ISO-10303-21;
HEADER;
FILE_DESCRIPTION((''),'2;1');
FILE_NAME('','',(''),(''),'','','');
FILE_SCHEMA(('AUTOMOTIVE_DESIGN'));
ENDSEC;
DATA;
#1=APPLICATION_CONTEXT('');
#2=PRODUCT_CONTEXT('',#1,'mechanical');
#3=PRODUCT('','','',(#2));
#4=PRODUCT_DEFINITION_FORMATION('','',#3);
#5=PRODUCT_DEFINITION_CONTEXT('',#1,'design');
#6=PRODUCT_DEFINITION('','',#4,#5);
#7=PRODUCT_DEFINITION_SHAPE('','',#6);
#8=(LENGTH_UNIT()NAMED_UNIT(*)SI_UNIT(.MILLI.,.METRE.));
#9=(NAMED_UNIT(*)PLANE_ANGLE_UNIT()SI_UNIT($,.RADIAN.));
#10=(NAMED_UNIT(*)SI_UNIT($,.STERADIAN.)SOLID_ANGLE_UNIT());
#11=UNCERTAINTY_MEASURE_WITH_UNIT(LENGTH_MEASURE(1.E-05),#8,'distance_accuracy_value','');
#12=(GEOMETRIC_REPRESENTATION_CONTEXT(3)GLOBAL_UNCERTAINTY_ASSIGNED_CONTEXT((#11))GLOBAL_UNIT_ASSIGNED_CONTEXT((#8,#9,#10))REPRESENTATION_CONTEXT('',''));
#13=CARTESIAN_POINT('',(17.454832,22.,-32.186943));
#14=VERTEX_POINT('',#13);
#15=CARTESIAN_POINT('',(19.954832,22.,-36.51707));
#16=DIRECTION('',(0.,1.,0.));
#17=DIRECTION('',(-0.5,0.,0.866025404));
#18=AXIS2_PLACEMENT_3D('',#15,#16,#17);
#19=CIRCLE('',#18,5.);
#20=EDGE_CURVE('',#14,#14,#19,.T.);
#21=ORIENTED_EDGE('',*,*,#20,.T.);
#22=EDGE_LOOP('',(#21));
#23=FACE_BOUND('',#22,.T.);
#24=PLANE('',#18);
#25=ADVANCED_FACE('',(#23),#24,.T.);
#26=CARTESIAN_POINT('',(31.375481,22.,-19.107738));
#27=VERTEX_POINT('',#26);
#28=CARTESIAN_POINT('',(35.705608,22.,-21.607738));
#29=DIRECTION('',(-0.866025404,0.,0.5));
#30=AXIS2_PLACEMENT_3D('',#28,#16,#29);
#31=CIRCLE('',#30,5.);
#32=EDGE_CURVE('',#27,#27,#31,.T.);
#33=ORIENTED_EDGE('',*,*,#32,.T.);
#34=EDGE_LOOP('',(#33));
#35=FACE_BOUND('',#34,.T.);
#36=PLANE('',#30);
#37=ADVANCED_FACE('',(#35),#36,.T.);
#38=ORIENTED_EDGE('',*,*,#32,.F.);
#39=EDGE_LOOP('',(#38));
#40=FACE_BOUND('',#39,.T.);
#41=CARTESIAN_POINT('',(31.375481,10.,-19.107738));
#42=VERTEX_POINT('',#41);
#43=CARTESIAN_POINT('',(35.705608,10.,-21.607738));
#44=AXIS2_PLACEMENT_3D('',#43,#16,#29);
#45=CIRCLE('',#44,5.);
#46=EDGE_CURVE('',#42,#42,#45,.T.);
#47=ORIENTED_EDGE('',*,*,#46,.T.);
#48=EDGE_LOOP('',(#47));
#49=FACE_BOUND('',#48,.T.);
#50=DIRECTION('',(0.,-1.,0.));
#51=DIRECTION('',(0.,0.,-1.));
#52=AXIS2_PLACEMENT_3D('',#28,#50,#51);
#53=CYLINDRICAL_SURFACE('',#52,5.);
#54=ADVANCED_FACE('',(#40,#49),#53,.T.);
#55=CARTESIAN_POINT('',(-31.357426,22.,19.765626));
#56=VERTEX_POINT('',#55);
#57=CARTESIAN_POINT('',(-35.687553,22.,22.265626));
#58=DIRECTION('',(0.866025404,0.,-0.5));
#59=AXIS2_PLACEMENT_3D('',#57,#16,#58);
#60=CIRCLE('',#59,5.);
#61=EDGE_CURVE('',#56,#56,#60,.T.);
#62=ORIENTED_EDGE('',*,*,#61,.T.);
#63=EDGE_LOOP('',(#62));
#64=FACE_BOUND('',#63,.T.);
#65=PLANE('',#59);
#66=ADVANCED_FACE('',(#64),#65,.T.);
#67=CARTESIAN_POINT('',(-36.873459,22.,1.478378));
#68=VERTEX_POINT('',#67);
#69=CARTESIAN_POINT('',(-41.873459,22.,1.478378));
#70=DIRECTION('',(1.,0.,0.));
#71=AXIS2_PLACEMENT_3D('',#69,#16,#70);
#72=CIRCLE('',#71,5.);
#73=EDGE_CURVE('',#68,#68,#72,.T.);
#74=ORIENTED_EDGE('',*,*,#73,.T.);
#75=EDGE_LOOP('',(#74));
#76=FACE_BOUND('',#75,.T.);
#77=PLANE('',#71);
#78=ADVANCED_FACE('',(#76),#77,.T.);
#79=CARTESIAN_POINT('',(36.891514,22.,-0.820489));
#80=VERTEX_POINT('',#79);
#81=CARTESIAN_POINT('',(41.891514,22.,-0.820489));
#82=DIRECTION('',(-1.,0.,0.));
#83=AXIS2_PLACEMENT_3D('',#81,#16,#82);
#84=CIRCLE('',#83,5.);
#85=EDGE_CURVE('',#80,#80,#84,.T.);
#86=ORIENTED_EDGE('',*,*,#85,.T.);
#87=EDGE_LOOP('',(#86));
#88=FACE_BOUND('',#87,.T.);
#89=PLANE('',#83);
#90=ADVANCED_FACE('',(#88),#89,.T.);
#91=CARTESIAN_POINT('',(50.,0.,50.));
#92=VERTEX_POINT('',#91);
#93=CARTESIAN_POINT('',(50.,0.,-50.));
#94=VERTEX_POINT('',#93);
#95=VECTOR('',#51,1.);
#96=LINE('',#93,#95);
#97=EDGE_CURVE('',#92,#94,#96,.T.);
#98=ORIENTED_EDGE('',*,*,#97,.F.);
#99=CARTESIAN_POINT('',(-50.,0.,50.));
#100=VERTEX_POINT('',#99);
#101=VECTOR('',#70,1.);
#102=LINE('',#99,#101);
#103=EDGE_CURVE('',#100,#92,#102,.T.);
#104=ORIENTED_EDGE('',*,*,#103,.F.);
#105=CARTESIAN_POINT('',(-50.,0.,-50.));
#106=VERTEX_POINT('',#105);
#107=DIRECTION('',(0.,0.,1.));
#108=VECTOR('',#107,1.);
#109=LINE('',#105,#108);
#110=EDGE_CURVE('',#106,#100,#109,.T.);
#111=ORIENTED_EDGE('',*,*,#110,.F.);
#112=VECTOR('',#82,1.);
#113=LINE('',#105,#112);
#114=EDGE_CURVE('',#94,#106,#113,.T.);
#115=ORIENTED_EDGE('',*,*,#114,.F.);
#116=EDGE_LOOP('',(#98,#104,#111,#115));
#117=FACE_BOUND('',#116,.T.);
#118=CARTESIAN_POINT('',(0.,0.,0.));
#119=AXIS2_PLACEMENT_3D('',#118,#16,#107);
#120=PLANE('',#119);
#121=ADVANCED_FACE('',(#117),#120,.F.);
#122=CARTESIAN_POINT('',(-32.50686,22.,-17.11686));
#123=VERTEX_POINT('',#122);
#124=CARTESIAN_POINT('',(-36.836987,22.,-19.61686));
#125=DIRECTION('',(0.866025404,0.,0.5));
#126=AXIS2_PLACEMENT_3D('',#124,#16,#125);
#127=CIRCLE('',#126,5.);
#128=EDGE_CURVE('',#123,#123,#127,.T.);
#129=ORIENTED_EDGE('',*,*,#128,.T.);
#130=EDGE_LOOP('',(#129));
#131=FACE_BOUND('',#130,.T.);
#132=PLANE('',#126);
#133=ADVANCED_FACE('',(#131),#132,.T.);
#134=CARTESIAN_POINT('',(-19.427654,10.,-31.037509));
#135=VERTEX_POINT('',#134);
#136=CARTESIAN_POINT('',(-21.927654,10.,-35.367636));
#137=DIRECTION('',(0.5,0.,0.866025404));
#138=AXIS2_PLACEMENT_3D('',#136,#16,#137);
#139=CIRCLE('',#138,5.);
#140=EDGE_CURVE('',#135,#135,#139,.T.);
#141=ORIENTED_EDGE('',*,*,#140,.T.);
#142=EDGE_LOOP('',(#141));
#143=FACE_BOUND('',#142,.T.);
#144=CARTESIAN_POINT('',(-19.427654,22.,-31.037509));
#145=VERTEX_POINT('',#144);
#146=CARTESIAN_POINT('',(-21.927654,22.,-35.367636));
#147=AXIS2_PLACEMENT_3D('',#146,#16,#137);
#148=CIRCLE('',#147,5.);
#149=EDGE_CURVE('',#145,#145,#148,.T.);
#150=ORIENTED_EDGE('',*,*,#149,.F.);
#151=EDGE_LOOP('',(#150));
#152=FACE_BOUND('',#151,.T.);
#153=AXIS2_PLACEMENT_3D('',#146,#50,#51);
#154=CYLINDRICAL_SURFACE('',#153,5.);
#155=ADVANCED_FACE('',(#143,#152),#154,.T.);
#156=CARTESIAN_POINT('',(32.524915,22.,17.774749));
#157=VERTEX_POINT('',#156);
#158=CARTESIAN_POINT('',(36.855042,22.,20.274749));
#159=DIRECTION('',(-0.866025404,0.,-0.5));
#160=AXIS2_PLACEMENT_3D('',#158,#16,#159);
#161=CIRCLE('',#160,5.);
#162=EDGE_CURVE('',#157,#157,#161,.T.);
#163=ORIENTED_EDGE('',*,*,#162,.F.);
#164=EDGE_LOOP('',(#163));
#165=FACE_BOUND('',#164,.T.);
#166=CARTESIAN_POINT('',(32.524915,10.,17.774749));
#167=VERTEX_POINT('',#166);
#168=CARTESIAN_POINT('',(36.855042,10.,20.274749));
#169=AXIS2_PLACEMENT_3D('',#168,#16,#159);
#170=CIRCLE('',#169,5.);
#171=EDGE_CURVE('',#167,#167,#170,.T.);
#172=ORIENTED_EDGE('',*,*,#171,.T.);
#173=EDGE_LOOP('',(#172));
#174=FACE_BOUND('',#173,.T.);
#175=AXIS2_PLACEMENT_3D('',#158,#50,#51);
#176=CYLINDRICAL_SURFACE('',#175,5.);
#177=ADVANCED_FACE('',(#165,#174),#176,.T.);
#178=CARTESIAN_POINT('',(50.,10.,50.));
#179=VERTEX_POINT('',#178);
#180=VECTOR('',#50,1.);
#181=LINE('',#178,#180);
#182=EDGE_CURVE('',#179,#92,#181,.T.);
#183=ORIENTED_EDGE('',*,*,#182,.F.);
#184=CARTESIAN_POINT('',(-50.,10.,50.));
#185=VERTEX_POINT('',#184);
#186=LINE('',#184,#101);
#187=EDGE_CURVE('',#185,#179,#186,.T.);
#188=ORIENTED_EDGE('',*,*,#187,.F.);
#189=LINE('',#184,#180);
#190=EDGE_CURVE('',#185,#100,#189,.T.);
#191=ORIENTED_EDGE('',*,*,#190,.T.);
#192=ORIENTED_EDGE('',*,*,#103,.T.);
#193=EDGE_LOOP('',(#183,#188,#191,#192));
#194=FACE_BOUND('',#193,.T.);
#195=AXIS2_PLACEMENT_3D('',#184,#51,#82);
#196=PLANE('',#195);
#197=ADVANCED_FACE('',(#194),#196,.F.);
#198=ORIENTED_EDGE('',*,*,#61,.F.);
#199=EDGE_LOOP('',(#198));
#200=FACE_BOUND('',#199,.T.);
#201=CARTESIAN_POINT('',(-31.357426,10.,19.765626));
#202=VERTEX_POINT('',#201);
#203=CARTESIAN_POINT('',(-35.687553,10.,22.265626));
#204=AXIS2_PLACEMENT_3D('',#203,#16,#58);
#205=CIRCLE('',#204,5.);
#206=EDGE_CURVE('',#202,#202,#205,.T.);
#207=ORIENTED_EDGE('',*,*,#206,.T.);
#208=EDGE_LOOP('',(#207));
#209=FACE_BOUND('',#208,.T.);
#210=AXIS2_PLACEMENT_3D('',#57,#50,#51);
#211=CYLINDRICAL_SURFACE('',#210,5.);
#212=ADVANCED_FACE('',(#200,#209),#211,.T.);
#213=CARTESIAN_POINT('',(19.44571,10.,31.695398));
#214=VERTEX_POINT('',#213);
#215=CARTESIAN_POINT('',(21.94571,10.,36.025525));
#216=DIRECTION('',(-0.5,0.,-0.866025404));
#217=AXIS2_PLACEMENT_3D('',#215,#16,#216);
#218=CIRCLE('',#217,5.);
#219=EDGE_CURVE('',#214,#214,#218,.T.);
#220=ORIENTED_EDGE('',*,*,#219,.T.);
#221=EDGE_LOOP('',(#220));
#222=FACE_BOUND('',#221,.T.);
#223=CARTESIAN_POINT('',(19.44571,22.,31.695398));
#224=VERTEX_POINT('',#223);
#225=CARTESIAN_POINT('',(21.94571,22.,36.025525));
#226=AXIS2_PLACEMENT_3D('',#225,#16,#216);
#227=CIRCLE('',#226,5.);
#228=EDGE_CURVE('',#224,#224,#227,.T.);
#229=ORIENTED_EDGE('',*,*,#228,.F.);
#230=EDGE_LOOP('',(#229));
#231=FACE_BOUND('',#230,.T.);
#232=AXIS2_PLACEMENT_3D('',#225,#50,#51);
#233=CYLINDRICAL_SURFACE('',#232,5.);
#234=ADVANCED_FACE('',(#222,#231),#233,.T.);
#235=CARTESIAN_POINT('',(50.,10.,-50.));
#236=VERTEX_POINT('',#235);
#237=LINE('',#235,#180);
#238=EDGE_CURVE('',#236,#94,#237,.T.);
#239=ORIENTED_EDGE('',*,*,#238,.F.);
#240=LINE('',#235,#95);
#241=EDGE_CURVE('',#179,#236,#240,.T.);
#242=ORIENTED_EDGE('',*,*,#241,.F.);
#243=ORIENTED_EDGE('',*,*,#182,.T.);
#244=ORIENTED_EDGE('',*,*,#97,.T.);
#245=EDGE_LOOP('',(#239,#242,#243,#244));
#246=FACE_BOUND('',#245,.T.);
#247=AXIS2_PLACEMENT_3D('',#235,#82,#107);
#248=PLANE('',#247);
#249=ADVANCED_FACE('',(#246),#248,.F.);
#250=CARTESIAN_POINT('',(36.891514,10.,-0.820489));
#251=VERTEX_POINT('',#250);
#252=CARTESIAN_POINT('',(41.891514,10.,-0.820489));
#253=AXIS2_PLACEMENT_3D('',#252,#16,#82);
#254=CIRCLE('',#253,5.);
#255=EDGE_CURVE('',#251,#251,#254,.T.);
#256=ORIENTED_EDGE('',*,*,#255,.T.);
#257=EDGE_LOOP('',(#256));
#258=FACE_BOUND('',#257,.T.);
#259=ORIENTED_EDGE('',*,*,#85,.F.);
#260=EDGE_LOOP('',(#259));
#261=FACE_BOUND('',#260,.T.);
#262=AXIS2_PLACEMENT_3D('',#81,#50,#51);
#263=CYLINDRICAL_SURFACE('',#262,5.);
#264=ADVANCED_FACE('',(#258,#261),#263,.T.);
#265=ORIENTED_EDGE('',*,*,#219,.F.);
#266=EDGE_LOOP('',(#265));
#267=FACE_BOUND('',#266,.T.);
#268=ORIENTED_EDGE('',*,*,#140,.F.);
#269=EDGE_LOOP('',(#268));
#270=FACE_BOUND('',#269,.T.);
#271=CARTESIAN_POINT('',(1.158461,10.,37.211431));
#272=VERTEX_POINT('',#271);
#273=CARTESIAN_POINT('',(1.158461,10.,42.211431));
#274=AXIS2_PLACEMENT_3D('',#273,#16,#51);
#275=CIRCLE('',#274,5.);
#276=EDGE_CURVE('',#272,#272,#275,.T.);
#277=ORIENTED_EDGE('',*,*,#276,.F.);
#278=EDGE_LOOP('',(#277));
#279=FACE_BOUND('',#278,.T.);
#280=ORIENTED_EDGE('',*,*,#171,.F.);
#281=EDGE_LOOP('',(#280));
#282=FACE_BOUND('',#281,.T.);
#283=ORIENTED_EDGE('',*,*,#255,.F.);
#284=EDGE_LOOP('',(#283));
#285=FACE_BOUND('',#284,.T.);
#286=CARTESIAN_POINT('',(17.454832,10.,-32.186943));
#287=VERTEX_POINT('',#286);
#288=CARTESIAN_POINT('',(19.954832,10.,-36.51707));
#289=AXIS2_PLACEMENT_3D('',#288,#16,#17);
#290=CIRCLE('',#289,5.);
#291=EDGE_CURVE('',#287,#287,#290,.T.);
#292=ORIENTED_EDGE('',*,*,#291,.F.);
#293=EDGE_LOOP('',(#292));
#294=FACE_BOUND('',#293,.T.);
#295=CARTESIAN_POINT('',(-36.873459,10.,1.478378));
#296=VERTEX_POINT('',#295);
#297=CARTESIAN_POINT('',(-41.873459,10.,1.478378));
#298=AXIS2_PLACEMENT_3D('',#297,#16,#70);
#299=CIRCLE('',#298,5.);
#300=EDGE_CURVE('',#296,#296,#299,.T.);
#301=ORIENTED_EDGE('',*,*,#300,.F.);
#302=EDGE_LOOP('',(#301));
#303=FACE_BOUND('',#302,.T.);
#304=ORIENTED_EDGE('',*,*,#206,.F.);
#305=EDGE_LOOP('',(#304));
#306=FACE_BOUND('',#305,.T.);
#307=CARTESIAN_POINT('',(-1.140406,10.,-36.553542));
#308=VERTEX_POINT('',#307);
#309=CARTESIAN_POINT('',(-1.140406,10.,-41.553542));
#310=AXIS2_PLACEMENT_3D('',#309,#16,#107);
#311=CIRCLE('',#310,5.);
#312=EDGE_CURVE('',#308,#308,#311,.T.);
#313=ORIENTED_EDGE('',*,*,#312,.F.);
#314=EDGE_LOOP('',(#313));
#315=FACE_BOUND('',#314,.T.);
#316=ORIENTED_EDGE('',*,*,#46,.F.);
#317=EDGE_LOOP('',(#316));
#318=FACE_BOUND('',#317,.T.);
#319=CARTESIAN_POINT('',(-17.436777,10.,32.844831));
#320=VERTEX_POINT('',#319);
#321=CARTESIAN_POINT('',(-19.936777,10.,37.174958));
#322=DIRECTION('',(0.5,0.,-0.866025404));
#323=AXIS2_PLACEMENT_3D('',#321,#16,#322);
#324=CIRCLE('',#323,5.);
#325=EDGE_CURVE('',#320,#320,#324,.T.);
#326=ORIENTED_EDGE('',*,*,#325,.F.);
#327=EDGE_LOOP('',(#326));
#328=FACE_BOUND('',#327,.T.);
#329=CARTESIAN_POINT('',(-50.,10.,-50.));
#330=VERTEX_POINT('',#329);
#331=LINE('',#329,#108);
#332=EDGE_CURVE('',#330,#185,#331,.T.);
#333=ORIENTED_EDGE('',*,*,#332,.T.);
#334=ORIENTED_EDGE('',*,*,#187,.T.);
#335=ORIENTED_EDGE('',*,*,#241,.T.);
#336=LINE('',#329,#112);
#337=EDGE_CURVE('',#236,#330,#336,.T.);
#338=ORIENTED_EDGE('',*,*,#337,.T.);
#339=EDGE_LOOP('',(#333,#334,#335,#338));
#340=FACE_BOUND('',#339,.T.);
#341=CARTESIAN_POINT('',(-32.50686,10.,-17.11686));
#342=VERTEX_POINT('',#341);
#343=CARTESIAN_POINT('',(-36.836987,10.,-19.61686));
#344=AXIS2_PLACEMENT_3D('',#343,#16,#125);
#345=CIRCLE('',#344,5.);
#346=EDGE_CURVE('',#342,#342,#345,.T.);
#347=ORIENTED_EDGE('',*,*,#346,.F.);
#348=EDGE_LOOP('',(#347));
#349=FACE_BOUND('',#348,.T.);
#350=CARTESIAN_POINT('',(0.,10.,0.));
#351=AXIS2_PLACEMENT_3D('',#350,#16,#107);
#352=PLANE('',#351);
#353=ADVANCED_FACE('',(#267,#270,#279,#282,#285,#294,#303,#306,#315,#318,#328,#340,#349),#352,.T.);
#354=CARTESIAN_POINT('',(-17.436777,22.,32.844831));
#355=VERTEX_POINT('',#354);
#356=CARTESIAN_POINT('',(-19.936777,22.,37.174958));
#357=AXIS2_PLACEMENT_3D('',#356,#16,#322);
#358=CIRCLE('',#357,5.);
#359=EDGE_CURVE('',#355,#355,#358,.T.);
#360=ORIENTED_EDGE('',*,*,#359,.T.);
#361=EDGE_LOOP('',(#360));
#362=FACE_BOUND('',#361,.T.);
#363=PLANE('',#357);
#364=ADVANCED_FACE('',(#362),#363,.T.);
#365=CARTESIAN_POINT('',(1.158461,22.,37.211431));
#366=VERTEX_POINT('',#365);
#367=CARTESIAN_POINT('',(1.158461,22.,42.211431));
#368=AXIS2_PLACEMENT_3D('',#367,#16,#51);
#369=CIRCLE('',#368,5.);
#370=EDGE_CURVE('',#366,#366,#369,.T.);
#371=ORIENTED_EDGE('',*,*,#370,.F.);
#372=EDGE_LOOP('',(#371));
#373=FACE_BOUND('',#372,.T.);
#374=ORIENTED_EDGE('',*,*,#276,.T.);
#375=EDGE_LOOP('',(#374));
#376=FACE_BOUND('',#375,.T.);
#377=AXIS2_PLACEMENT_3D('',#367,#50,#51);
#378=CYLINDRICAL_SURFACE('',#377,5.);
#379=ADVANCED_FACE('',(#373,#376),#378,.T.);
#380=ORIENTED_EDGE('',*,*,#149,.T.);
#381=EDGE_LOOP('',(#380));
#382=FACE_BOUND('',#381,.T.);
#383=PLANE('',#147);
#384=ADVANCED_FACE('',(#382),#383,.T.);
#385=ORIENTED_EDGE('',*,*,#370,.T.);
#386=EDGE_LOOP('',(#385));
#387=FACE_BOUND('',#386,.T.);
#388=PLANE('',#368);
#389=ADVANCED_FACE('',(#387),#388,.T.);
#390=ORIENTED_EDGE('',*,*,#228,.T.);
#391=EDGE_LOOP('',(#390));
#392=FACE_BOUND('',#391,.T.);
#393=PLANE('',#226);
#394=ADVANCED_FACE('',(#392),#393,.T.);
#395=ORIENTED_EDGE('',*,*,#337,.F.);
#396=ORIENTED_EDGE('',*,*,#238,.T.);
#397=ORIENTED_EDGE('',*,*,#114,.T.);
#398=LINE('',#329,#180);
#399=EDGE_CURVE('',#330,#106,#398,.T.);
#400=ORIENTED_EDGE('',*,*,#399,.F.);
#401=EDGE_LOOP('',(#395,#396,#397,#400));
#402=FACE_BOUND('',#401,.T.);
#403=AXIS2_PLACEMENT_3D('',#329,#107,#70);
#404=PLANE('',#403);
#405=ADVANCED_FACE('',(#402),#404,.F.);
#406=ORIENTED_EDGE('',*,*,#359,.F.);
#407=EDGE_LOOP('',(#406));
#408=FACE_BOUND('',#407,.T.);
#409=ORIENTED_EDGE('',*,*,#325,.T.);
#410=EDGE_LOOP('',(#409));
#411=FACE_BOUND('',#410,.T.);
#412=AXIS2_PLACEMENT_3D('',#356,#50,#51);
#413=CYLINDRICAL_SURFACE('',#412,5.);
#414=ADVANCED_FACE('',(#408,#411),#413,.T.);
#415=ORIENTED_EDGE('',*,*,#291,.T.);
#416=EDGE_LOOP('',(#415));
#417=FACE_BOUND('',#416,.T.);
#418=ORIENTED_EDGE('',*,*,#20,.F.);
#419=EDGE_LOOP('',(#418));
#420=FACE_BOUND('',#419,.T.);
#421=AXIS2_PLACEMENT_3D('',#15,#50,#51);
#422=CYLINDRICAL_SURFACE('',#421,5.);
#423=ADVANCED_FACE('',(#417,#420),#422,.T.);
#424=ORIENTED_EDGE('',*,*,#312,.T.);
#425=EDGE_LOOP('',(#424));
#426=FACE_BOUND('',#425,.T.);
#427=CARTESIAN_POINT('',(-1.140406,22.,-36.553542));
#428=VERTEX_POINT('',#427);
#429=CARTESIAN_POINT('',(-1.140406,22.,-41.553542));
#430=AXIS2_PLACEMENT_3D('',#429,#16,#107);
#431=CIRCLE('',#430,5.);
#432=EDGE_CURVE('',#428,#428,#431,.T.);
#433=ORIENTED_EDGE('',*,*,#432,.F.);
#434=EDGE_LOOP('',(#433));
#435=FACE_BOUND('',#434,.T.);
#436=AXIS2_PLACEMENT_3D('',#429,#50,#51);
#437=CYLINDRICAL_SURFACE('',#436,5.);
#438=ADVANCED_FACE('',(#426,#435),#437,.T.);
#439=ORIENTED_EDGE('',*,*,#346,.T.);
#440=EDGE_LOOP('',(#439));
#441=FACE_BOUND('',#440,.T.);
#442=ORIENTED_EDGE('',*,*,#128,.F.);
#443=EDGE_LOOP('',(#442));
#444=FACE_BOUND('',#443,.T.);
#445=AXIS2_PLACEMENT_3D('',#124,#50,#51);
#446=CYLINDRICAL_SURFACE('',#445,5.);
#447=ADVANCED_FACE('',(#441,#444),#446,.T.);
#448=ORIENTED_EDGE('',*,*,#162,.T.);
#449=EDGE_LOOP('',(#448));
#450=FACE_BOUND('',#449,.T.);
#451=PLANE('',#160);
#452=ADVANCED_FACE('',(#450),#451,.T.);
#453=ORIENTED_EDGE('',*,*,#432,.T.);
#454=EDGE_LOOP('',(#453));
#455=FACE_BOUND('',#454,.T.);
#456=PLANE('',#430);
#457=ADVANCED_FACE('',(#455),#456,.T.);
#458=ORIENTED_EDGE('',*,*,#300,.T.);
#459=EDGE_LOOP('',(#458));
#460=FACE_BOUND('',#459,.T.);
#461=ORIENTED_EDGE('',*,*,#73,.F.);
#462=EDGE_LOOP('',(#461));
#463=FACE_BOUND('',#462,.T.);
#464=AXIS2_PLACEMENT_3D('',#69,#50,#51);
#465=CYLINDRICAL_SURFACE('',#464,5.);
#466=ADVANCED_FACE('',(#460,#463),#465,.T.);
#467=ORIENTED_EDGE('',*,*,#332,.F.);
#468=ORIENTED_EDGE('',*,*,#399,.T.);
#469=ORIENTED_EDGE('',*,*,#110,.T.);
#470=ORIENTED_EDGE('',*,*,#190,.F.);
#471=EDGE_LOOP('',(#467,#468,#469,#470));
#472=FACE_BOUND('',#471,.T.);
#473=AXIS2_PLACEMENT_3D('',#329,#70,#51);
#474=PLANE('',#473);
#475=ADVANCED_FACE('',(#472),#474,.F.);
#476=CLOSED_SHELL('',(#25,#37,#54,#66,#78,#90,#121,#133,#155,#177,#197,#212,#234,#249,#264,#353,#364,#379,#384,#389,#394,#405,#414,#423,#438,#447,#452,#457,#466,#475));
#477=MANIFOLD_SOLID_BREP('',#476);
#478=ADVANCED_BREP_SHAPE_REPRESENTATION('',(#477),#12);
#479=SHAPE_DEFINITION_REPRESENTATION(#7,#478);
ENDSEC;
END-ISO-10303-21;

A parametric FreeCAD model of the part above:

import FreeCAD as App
import Part
import Sketcher

V = App.Vector

doc = App.newDocument("Part")
params = doc.addObject("Spreadsheet::Sheet", "Params")
for row, (alias, value) in enumerate([
    ("sketch1_width", "100 mm"),
    ("pad1_length", "10 mm"),
    ("sketch2_diameter", "10 mm"),
    ("pad2_length", "12 mm"),
], start=1):
    params.set(f"A{row}", alias)
    params.set(f"B{row}", "=" + value)
    params.setAlias(f"B{row}", alias)

body = doc.addObject("PartDesign::Body", "Body")

# Sketch on XZ plane
sketch1 = body.newObject("Sketcher::SketchObject", "Sketch")
sketch1.AttachmentSupport = (doc.getObject("XZ_Plane"), [""])
sketch1.MapMode = "FlatFace"
sketch1.addGeometry([
    Part.LineSegment(V(-50, -50, 0), V(-50, 50, 0)),
    Part.LineSegment(V(-50, 50, 0), V(50, 50, 0)),
    Part.LineSegment(V(50, 50, 0), V(50, -50, 0)),
    Part.LineSegment(V(50, -50, 0), V(-50, -50, 0)),
], False)
sketch1.addConstraint([
    Sketcher.Constraint("Coincident", 0, 2, 1, 1),
    Sketcher.Constraint("Coincident", 1, 2, 2, 1),
    Sketcher.Constraint("Coincident", 2, 2, 3, 1),
    Sketcher.Constraint("Coincident", 3, 2, 0, 1),
    Sketcher.Constraint("Vertical", 0),
    Sketcher.Constraint("Horizontal", 1),
    Sketcher.Constraint("Vertical", 2),
    Sketcher.Constraint("Horizontal", 3),
    Sketcher.Constraint("Symmetric", 0, 2, 2, 2, -1, 1),
    Sketcher.Constraint("Equal", 3, 0),
    Sketcher.Constraint("DistanceX", 1, 1, 1, 2, 100.0),
])
sketch1.setExpression("Constraints[10]", "Params.sketch1_width")
pad1 = body.newObject("PartDesign::Pad", "Pad")
pad1.Profile = sketch1
pad1.setExpression("Length", "Params.pad1_length")
pad1.Reversed = True

# Sketch on XZ plane
sketch2 = body.newObject("Sketcher::SketchObject", "Sketch001")
sketch2.AttachmentSupport = (doc.getObject("XZ_Plane"), [""])
sketch2.MapMode = "FlatFace"
sketch2.AttachmentOffset = App.Placement(V(0, 0, -10), App.Rotation())
sketch2.addGeometry(Part.Circle(V(-1, -42, 0), V(0, 0, 1), 5), False)
sketch2.addConstraint([
    Sketcher.Constraint("Diameter", 0, 10.0),
    Sketcher.Constraint("DistanceX", 0, 3, -1, 1, 1.140406),
    Sketcher.Constraint("DistanceY", 0, 3, -1, 1, 41.553542),
])
sketch2.setExpression("Constraints[0]", "Params.sketch2_diameter")
pad2 = body.newObject("PartDesign::Pad", "Pad001")
pad2.Profile = sketch2
pad2.setExpression("Length", "Params.pad2_length")
pad2.Reversed = True
doc.recompute()

datumline = body.newObject("PartDesign::Line", "DatumLine")
datumline.Placement = App.Placement(V(0.009028, 0, 0.328944), App.Rotation(V(0, 0, 1), V(0, 1, 0)))
polarpattern = body.newObject("PartDesign::PolarPattern", "PolarPattern")
polarpattern.Originals = [pad2]
polarpattern.Axis = (datumline, [""])
polarpattern.Angle = 360
polarpattern.Occurrences = 12
body.Tip = polarpattern

doc.recompute()
